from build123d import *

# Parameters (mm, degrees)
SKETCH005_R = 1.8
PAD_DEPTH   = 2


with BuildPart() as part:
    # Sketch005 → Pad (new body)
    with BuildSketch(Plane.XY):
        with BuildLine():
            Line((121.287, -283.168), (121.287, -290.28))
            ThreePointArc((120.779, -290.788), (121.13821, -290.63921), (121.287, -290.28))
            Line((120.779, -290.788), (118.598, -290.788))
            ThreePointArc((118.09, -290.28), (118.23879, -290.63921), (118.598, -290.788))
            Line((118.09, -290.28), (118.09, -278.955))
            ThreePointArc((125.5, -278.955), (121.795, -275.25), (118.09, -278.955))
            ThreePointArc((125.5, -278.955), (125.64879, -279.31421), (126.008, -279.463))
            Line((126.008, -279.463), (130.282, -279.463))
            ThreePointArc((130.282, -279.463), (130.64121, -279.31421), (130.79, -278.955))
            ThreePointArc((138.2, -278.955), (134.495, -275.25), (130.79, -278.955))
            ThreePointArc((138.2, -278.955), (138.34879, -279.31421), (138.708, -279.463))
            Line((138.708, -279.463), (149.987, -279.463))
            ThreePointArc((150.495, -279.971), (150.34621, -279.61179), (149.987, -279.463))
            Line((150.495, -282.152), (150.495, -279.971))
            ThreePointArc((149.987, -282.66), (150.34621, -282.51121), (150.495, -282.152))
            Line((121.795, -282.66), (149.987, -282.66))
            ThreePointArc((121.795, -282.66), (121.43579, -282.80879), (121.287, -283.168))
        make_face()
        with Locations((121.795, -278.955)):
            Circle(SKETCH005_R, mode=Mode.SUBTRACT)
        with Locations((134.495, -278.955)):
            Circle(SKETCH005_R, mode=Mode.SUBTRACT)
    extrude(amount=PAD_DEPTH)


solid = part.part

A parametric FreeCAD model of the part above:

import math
import FreeCAD as App
import Part
import Sketcher
from FreeCAD import Vector

doc = App.newDocument("Part")
body = doc.addObject("PartDesign::Body", "Body")

# Sketch on XY plane
sketch1 = body.newObject("Sketcher::SketchObject", "Sketch")
sketch1.AttachmentSupport = (doc.getObject("XY_Plane"), [""])
sketch1.MapMode = "FlatFace"
sketch1.addGeometry([
    Part.LineSegment(Vector(121.287, -290.28, 0), Vector(121.287, -283.168, 0)),  # 0
    Part.ArcOfCircle(Part.Circle(Vector(121.795001, -283.168001, 0), Vector(0, 0, 1), 0.508001), math.radians(90.000094), math.radians(179.999906)),  # 1
    Part.LineSegment(Vector(121.795, -282.66, 0), Vector(149.987, -282.66, 0)),  # 2
    Part.ArcOfCircle(Part.Circle(Vector(149.986999, -282.151999, 0), Vector(0, 0, 1), 0.508001), math.radians(-89.999906), math.radians(-0.000094)),  # 3
    Part.LineSegment(Vector(150.495, -282.152, 0), Vector(150.495, -279.971, 0)),  # 4
    Part.ArcOfCircle(Part.Circle(Vector(149.986999, -279.971001, 0), Vector(0, 0, 1), 0.508001), math.radians(0.000094), math.radians(89.999906)),  # 5
    Part.LineSegment(Vector(149.987, -279.463, 0), Vector(138.708, -279.463, 0)),  # 6
    Part.ArcOfCircle(Part.Circle(Vector(138.708001, -278.954999, 0), Vector(0, 0, 1), 0.508001), math.radians(-179.999906), math.radians(-90.000094)),  # 7
    Part.ArcOfCircle(Part.Circle(Vector(134.495, -278.955, 0), Vector(0, 0, 1), 3.705), math.radians(0), math.radians(180)),  # 8
    Part.ArcOfCircle(Part.Circle(Vector(130.281999, -278.954999, 0), Vector(0, 0, 1), 0.508001), math.radians(-89.999906), math.radians(-0.000094)),  # 9
    Part.LineSegment(Vector(130.282, -279.463, 0), Vector(126.008, -279.463, 0)),  # 10
    Part.ArcOfCircle(Part.Circle(Vector(126.008001, -278.954999, 0), Vector(0, 0, 1), 0.508001), math.radians(-179.999906), math.radians(-90.000094)),  # 11
    Part.ArcOfCircle(Part.Circle(Vector(121.795, -278.955, 0), Vector(0, 0, 1), 3.705), math.radians(0), math.radians(180)),  # 12
    Part.LineSegment(Vector(118.09, -278.955, 0), Vector(118.09, -290.28, 0)),  # 13
    Part.ArcOfCircle(Part.Circle(Vector(118.598001, -290.279999, 0), Vector(0, 0, 1), 0.508001), math.radians(-179.999906), math.radians(-90.000094)),  # 14
    Part.LineSegment(Vector(118.598, -290.788, 0), Vector(120.779, -290.788, 0)),  # 15
    Part.ArcOfCircle(Part.Circle(Vector(120.778999, -290.279999, 0), Vector(0, 0, 1), 0.508001), math.radians(-89.999906), math.radians(-0.000094)),  # 16
    Part.Circle(Vector(134.495, -278.955, 0), Vector(0, 0, 1), 1.8),  # 17
    Part.Circle(Vector(121.795, -278.955, 0), Vector(0, 0, 1), 1.8),  # 18
], False)
sketch1.addConstraint([
    Sketcher.Constraint("Tangent", 0, 2, 1, 2),
    Sketcher.Constraint("Tangent", 1, 1, 2, 1),
    Sketcher.Constraint("Tangent", 2, 2, 3, 1),
    Sketcher.Constraint("Tangent", 3, 2, 4, 1),
    Sketcher.Constraint("Tangent", 4, 2, 5, 1),
    Sketcher.Constraint("Tangent", 5, 2, 6, 1),
    Sketcher.Constraint("Tangent", 6, 2, 7, 2),
    Sketcher.Constraint("Tangent", 7, 1, 8, 1),
    Sketcher.Constraint("Tangent", 8, 2, 9, 2),
    Sketcher.Constraint("Tangent", 9, 1, 10, 1),
    Sketcher.Constraint("Tangent", 10, 2, 11, 2),
    Sketcher.Constraint("Tangent", 11, 1, 12, 1),
    Sketcher.Constraint("Tangent", 12, 2, 13, 1),
    Sketcher.Constraint("Tangent", 13, 2, 14, 1),
    Sketcher.Constraint("Tangent", 14, 2, 15, 1),
    Sketcher.Constraint("Tangent", 15, 2, 16, 1),
    Sketcher.Constraint("Tangent", 16, 2, 0, 1),
    Sketcher.Constraint("Vertical", 0),
    Sketcher.Constraint("Horizontal", 2),
    Sketcher.Constraint("Vertical", 4),
    Sketcher.Constraint("Horizontal", 6),
    Sketcher.Constraint("Horizontal", 10),
    Sketcher.Constraint("Vertical", 13),
    Sketcher.Constraint("Horizontal", 15),
    Sketcher.Constraint("Coincident", 17, 3, 8, 3),
    Sketcher.Constraint("Coincident", 18, 3, 12, 3),
    Sketcher.Constraint("Equal", 1, 3),
    Sketcher.Constraint("Equal", 3, 5),
    Sketcher.Constraint("Equal", 5, 7),
    Sketcher.Constraint("Equal", 7, 9),
    Sketcher.Constraint("Equal", 9, 11),
    Sketcher.Constraint("Equal", 8, 12),
    Sketcher.Constraint("Equal", 11, 14),
    Sketcher.Constraint("Equal", 14, 16),
    Sketcher.Constraint("Equal", 17, 18),
    Sketcher.Constraint("Horizontal", 7, 3, 8, 3),
    Sketcher.Constraint("Horizontal", 8, 3, 9, 3),
    Sketcher.Constraint("Horizontal", 11, 3, 12, 3),
    Sketcher.Constraint("Vertical", 1, 3, 12, 3),
    Sketcher.Constraint("Equal", 15, 4),
    Sketcher.Constraint("Diameter", 17, 3.6),
    Sketcher.Constraint("Radius", 1, 0.508001),
    Sketcher.Constraint("Radius", 8, 3.705),
    Sketcher.Constraint("DistanceX", 8, 3, 3, 2, 16.0),
    Sketcher.Constraint("DistanceX", -1, 1, 7, 1, 138.2),
    Sketcher.Constraint("DistanceX", -1, 1, 11, 1, 125.5),
    Sketcher.Constraint("DistanceY", 0, 1, 0, 2, 7.112),
    Sketcher.Constraint("DistanceY", 14, 3, -1, 1, 290.279999),
])
pad1 = body.newObject("PartDesign::Pad", "Pad")
pad1.Profile = sketch1
pad1.Length = 2

doc.recompute()
